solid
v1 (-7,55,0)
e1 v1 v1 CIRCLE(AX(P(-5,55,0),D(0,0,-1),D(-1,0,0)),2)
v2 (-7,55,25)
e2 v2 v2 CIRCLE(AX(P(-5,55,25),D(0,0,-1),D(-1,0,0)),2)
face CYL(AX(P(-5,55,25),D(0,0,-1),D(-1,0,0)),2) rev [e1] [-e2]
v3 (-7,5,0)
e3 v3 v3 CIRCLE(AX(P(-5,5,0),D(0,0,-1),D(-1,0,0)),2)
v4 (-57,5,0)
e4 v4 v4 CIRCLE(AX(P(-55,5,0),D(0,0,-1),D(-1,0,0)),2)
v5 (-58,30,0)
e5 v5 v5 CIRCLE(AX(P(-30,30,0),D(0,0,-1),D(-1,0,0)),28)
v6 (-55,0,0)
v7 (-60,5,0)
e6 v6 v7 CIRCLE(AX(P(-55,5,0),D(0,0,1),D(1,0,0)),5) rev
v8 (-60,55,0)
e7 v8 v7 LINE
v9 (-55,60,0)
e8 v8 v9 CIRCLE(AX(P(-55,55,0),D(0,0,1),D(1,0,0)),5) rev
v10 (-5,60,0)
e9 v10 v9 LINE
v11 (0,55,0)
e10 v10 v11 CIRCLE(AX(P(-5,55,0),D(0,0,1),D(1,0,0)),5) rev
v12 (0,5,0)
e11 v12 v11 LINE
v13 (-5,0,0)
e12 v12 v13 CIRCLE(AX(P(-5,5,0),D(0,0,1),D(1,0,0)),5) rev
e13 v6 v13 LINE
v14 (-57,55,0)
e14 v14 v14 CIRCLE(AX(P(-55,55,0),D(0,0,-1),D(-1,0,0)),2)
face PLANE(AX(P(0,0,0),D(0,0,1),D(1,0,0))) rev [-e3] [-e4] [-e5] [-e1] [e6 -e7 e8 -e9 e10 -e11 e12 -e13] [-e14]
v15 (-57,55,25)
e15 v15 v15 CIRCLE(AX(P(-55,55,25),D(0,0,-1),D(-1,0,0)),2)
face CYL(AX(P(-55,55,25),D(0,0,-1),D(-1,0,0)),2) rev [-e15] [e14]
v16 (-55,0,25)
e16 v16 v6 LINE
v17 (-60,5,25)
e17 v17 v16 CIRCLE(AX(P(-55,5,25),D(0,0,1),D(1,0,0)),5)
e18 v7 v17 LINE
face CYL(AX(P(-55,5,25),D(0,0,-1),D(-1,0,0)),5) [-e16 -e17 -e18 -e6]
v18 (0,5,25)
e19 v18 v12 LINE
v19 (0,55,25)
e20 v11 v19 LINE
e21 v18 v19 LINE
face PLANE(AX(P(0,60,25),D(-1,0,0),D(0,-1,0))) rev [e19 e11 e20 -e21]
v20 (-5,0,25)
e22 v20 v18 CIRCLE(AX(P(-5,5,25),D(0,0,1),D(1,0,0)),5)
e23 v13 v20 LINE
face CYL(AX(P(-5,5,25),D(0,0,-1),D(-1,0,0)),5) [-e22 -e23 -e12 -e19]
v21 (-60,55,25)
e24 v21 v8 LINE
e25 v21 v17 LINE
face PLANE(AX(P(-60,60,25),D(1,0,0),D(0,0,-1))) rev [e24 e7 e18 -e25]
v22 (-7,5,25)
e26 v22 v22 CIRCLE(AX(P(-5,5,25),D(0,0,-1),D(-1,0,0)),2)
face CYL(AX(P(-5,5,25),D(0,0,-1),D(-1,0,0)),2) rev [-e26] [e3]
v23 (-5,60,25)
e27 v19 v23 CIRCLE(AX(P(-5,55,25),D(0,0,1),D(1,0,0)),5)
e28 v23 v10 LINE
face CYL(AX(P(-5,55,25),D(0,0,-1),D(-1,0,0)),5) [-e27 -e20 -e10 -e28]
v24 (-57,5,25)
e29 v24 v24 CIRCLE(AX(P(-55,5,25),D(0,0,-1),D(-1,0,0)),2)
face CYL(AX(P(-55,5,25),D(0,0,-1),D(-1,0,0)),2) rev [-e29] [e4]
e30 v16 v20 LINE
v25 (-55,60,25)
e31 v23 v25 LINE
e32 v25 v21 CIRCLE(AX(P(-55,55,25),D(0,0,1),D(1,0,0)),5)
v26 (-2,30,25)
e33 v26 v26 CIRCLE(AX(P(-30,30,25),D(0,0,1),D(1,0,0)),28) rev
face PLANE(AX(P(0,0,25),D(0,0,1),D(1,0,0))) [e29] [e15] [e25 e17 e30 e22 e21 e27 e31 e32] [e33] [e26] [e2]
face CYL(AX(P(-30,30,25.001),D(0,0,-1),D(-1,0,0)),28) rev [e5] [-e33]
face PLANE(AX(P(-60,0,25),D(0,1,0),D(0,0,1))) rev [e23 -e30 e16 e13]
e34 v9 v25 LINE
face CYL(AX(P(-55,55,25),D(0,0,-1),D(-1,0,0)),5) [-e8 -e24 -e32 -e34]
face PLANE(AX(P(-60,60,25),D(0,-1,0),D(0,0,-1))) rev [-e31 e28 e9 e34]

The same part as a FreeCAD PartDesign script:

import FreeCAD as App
import Part
import Sketcher


def edges_at(feature, points):
    """Names of the edges that pass closest to the given points."""
    edges = feature.Shape.Edges
    near = lambda p: min(range(len(edges)), key=lambda i: edges[i].distToShape(Part.Vertex(*p))[0])
    return sorted({f"Edge{near(p) + 1}" for p in points})

doc = App.newDocument("Part")
body = doc.addObject("PartDesign::Body", "Body")

sketch1 = body.newObject("Sketcher::SketchObject", "Sketch")
sketch1.AttachmentSupport = (doc.getObject("XY_Plane"), [""])
sketch1.MapMode = "FlatFace"
sketch1.addGeometry(Part.LineSegment(App.Vector(-60, 60, 0), App.Vector(-60, 0, 0)), False)
sketch1.addGeometry(Part.LineSegment(App.Vector(-60, 0, 0), App.Vector(0, 0, 0)), False)
sketch1.addGeometry(Part.LineSegment(App.Vector(0, 0, 0), App.Vector(0, 60, 0)), False)
sketch1.addGeometry(Part.LineSegment(App.Vector(0, 60, 0), App.Vector(-60, 60, 0)), False)
sketch1.addConstraint(Sketcher.Constraint("Coincident", 0, 2, 1, 1))
sketch1.addConstraint(Sketcher.Constraint("Coincident", 1, 2, 2, 1))
sketch1.addConstraint(Sketcher.Constraint("Coincident", 2, 2, 3, 1))
sketch1.addConstraint(Sketcher.Constraint("Coincident", 3, 2, 0, 1))
sketch1.addConstraint(Sketcher.Constraint("Vertical", 0))
sketch1.addConstraint(Sketcher.Constraint("Horizontal", 1))
sketch1.addConstraint(Sketcher.Constraint("Vertical", 2))
sketch1.addConstraint(Sketcher.Constraint("Horizontal", 3))
sketch1.addConstraint(Sketcher.Constraint("Coincident", 1, 2, -1, 1))
sketch1.addConstraint(Sketcher.Constraint("Equal", 3, 0))
sketch1.addConstraint(Sketcher.Constraint("DistanceX", 1, 1, 1, 2, 60.0))
pad1 = body.newObject("PartDesign::Pad", "Pad")
pad1.Profile = sketch1
pad1.Length = 25

sketch2 = body.newObject("Sketcher::SketchObject", "Sketch001")
sketch2.AttachmentSupport = (doc.getObject("XY_Plane"), [""])
sketch2.MapMode = "FlatFace"
sketch2.addGeometry(Part.Circle(App.Vector(-30, 30, 0), App.Vector(0, 0, 1), 28), False)
sketch2.addConstraint(Sketcher.Constraint("Diameter", 0, 56.0))
sketch2.addConstraint(Sketcher.Constraint("DistanceX", 0, 3, -1, 1, 30.0))
sketch2.addConstraint(Sketcher.Constraint("DistanceY", -1, 1, 0, 3, 30.0))
pocket1 = body.newObject("PartDesign::Pocket", "Pocket")
pocket1.Profile = sketch2
pocket1.Type = "UpToFirst"
pocket1.Reversed = True

sketch3 = body.newObject("Sketcher::SketchObject", "Sketch002")
sketch3.AttachmentSupport = (doc.getObject("XY_Plane"), [""])
sketch3.MapMode = "FlatFace"
sketch3.addGeometry(Part.Circle(App.Vector(-5, 55, 0), App.Vector(0, 0, 1), 2), False)
sketch3.addGeometry(Part.Circle(App.Vector(-55, 55, 0), App.Vector(0, 0, 1), 2), False)
sketch3.addGeometry(Part.Circle(App.Vector(-55, 5, 0), App.Vector(0, 0, 1), 2), False)
sketch3.addGeometry(Part.Circle(App.Vector(-5, 5, 0), App.Vector(0, 0, 1), 2), False)
sketch3.addConstraint(Sketcher.Constraint("Equal", 0, 1))
sketch3.addConstraint(Sketcher.Constraint("Equal", 1, 2))
sketch3.addConstraint(Sketcher.Constraint("Equal", 2, 3))
sketch3.addConstraint(Sketcher.Constraint("Horizontal", 0, 3, 1, 3))
sketch3.addConstraint(Sketcher.Constraint("Horizontal", 2, 3, 3, 3))
sketch3.addConstraint(Sketcher.Constraint("Vertical", 1, 3, 2, 3))
sketch3.addConstraint(Sketcher.Constraint("Vertical", 0, 3, 3, 3))
sketch3.addConstraint(Sketcher.Constraint("Diameter", 0, 4.0))
sketch3.addConstraint(Sketcher.Constraint("DistanceX", 0, 3, -1, 1, 5.0))
sketch3.addConstraint(Sketcher.Constraint("DistanceY", -1, 1, 0, 3, 55.0))
sketch3.addConstraint(Sketcher.Constraint("DistanceX", 1, 3, -1, 1, 55.0))
sketch3.addConstraint(Sketcher.Constraint("DistanceY", -1, 1, 2, 3, 5.0))
pocket2 = body.newObject("PartDesign::Pocket", "Pocket001")
pocket2.Profile = sketch3
pocket2.Length = 25
pocket2.Reversed = True
doc.recompute()

fillet = body.newObject("PartDesign::Fillet", "Fillet")
fillet.Base = (pocket2, edges_at(pocket2, [
    (-60, 60, 12.5),
    (0, 60, 12.5),
    (0, 0, 12.5),
    (-60, 0, 12.5),
]))
fillet.Radius = 5

doc.recompute()
